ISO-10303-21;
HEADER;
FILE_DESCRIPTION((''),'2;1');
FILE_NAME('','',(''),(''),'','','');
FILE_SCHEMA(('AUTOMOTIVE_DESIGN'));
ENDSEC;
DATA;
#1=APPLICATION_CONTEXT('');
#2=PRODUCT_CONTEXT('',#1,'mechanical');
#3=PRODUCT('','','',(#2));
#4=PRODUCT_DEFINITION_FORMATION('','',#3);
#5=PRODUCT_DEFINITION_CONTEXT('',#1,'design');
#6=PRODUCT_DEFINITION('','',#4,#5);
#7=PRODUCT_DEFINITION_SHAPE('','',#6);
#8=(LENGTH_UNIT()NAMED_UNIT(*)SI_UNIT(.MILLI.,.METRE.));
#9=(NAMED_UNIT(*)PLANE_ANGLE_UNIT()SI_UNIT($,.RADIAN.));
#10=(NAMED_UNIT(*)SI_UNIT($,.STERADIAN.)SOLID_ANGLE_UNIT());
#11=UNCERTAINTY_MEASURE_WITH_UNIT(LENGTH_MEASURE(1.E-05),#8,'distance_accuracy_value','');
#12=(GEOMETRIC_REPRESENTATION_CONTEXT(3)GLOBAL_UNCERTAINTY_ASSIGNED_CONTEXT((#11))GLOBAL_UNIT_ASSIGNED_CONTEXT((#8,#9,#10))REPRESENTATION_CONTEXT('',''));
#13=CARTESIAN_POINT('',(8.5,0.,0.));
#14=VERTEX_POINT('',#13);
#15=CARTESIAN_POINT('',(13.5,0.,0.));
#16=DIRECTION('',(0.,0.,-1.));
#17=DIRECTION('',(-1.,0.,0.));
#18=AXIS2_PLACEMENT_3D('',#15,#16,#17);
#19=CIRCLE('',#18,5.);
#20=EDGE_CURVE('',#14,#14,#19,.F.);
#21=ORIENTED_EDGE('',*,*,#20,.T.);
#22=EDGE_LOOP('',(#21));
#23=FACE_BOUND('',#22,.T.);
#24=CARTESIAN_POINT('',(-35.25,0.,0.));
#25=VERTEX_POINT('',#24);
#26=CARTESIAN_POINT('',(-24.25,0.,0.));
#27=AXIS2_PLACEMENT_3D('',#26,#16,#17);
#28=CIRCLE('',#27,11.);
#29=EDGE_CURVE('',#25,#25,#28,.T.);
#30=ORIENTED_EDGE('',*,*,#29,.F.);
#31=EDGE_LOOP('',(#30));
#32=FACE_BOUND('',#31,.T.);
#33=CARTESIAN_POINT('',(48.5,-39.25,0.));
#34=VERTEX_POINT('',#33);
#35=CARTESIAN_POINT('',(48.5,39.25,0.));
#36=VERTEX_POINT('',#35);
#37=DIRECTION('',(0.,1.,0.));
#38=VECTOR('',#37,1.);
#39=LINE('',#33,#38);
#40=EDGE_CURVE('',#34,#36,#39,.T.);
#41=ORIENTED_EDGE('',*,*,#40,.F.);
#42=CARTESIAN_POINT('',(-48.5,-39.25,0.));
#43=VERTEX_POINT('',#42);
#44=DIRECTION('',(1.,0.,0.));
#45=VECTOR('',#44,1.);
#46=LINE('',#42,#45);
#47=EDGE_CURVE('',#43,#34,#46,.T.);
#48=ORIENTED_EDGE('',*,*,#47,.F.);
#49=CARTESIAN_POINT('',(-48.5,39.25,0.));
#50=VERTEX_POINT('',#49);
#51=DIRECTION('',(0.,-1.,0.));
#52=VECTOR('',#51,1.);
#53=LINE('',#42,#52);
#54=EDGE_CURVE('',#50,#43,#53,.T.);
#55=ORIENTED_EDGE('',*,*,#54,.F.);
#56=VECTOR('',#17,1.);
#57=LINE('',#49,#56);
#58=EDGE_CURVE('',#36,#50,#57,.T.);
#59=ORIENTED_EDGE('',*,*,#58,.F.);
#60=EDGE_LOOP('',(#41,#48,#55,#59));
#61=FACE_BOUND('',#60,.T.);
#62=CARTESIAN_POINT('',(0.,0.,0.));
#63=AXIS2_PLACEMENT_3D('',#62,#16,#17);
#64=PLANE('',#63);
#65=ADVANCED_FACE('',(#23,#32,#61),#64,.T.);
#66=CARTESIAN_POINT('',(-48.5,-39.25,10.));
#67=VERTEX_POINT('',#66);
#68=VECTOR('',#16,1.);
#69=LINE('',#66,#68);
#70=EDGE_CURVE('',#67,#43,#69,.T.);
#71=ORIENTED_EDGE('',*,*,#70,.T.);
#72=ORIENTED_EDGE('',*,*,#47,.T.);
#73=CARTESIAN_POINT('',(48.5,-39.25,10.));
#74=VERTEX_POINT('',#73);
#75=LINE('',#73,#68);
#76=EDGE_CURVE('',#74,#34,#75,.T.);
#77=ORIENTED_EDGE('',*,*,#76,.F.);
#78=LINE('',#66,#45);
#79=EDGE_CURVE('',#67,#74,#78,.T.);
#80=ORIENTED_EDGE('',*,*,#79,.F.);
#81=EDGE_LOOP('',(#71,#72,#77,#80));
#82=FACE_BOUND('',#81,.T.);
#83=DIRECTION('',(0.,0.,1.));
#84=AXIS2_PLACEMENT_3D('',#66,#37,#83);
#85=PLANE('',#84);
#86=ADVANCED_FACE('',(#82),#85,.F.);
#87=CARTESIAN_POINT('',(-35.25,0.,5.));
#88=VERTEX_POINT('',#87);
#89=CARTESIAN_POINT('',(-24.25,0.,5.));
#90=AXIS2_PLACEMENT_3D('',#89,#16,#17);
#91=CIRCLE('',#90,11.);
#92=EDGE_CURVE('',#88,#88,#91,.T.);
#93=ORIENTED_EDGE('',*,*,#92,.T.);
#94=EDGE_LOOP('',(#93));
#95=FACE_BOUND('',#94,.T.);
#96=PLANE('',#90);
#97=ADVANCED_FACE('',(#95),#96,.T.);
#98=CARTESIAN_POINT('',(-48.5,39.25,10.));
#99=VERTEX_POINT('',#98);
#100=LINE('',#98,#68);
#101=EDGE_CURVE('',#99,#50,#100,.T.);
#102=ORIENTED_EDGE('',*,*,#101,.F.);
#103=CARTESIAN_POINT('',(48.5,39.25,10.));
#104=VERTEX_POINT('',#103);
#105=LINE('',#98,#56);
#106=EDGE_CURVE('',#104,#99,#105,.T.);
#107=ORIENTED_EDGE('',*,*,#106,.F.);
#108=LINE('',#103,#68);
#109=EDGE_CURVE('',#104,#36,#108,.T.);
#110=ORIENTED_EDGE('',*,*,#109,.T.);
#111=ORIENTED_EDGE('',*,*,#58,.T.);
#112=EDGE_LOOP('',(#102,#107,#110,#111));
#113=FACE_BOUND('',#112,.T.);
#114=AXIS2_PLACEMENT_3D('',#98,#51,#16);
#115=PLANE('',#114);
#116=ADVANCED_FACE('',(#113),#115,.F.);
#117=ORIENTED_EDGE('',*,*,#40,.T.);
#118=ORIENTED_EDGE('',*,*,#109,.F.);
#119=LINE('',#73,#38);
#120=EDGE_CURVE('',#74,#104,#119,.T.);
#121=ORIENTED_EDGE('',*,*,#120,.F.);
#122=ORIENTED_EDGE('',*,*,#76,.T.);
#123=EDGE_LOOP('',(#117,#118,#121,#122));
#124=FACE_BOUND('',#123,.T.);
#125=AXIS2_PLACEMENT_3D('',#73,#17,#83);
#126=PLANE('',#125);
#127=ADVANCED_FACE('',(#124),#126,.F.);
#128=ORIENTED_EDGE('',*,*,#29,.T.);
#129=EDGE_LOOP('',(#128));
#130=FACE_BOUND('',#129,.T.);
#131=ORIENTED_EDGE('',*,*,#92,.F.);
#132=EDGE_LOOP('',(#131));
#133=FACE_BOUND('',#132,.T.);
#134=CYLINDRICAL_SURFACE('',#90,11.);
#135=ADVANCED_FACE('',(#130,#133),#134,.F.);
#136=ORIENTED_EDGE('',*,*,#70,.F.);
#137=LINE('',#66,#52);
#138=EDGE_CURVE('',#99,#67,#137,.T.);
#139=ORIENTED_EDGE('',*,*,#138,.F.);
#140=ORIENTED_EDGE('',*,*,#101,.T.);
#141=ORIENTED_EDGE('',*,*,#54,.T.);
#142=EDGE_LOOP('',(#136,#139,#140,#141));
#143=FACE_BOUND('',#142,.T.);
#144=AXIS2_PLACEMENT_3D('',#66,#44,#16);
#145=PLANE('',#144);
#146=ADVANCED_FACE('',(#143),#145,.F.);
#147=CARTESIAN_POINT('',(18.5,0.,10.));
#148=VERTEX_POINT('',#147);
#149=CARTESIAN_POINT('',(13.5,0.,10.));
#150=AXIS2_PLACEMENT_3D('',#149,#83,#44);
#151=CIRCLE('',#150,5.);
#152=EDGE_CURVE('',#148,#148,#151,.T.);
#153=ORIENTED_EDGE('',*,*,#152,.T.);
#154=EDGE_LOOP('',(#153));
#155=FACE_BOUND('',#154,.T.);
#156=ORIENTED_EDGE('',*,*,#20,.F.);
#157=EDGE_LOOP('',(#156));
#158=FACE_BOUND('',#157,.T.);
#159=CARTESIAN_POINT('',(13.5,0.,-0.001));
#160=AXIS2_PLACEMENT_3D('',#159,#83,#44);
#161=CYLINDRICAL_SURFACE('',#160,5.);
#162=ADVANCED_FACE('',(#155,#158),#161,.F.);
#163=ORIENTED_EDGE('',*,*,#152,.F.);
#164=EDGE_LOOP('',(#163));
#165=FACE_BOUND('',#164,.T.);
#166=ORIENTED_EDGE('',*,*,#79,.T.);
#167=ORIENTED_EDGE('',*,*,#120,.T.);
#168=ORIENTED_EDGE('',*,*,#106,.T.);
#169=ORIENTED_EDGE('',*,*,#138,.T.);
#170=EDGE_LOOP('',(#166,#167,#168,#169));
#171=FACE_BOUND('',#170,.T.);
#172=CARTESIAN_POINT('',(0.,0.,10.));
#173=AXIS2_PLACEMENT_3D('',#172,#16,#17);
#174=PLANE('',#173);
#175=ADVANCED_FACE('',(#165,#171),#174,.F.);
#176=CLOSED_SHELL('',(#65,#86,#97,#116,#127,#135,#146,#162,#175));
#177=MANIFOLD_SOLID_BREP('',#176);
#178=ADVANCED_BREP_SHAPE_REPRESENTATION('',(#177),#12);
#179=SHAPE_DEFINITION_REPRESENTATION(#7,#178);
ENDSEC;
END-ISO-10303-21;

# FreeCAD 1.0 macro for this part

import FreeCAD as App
import Part
import Sketcher
from FreeCAD import Vector

doc = App.newDocument("Part")
body = doc.addObject("PartDesign::Body", "Body")

# Sketch on XY plane
sketch1 = body.newObject("Sketcher::SketchObject", "Sketch")
sketch1.AttachmentSupport = (doc.getObject("XY_Plane"), [""])
sketch1.MapMode = "FlatFace"
sketch1.addGeometry([
    Part.LineSegment(Vector(-48.5, 39.25, 0), Vector(-48.5, -39.25, 0)),
    Part.LineSegment(Vector(-48.5, -39.25, 0), Vector(48.5, -39.25, 0)),
    Part.LineSegment(Vector(48.5, -39.25, 0), Vector(48.5, 39.25, 0)),
    Part.LineSegment(Vector(48.5, 39.25, 0), Vector(-48.5, 39.25, 0)),
], False)
sketch1.addConstraint([
    Sketcher.Constraint("Coincident", 0, 2, 1, 1),
    Sketcher.Constraint("Coincident", 1, 2, 2, 1),
    Sketcher.Constraint("Coincident", 2, 2, 3, 1),
    Sketcher.Constraint("Coincident", 3, 2, 0, 1),
    Sketcher.Constraint("Vertical", 0),
    Sketcher.Constraint("Horizontal", 1),
    Sketcher.Constraint("Vertical", 2),
    Sketcher.Constraint("Horizontal", 3),
    Sketcher.Constraint("Symmetric", 0, 2, 2, 2, -1, 1),
    Sketcher.Constraint("DistanceX", 1, 1, 1, 2, 97.0),
    Sketcher.Constraint("DistanceY", 0, 2, 0, 1, 78.5),
])
pad1 = body.newObject("PartDesign::Pad", "Pad")
pad1.Profile = sketch1
pad1.Length = 10

# Sketch on XY plane
sketch2 = body.newObject("Sketcher::SketchObject", "Sketch001")
sketch2.AttachmentSupport = (doc.getObject("XY_Plane"), [""])
sketch2.MapMode = "FlatFace"
sketch2.AttachmentOffset = App.Placement(Vector(0, 0, 10), App.Rotation())
sketch2.addGeometry(Part.Circle(Vector(13.5, 0, 0), Vector(0, 0, 1), 5), False)
sketch2.addConstraint([
    Sketcher.Constraint("PointOnObject", 0, 3, -1),
    Sketcher.Constraint("Diameter", 0, 10.0),
    Sketcher.Constraint("DistanceX", -1, 1, 0, 3, 13.5),
])
pocket1 = body.newObject("PartDesign::Pocket", "Pocket")
pocket1.Profile = sketch2
pocket1.Type = "UpToFirst"

# Sketch on XY plane
sketch3 = body.newObject("Sketcher::SketchObject", "Sketch002")
sketch3.AttachmentSupport = (doc.getObject("XY_Plane"), [""])
sketch3.MapMode = "FlatFace"
sketch3.addGeometry(Part.Circle(Vector(-24.25, 0, 0), Vector(0, 0, 1), 11), False)
sketch3.addConstraint([
    Sketcher.Constraint("PointOnObject", 0, 3, -1),
    Sketcher.Constraint("Diameter", 0, 22.0),
    Sketcher.Constraint("DistanceX", 0, 3, -1, 1, 24.25),
])
pocket2 = body.newObject("PartDesign::Pocket", "Pocket001")
pocket2.Profile = sketch3
pocket2.Length = 5
pocket2.Reversed = True

doc.recompute()
